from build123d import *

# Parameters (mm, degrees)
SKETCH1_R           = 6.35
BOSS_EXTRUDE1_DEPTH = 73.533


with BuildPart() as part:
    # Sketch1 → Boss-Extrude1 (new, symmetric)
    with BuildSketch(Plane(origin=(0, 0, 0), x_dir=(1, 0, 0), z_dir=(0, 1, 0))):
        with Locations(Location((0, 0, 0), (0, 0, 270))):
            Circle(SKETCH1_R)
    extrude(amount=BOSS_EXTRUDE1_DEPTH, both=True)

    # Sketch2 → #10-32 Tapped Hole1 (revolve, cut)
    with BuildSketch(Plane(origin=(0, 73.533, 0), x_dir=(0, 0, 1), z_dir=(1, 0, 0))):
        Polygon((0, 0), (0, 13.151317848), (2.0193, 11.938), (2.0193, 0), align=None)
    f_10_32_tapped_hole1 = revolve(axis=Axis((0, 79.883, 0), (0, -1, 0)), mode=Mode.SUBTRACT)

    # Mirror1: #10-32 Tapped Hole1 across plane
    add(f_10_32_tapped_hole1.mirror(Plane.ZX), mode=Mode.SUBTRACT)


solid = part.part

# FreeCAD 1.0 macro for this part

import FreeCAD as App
import Part
import Sketcher
Q = App.Units.Quantity


def add_polygon(sketch, points):
    """Adds a closed chain of lines whose ends are joined by coincident constraints."""
    first, n = sketch.GeometryCount, len(points)
    for a, b in zip(points, points[1:] + points[:1]):
        sketch.addGeometry(Part.LineSegment(App.Vector(*a, 0), App.Vector(*b, 0)), False)
    for i in range(n):
        sketch.addConstraint(Sketcher.Constraint("Coincident", first + i, 2, first + (i + 1) % n, 1))

doc = App.newDocument("Part")
body = doc.addObject("PartDesign::Body", "Body")

# Sketch on XZ plane
sketch1 = body.newObject("Sketcher::SketchObject", "Sketch")
sketch1.AttachmentSupport = (doc.getObject("XZ_Plane"), [""])
sketch1.MapMode = "FlatFace"
sketch1.addGeometry(Part.Circle(App.Vector(0, 0, 0), App.Vector(0, 0, 1), 6.35), False)
sketch1.addConstraint([
    Sketcher.Constraint("Coincident", 0, 3, -1, 1),
    Sketcher.Constraint("Diameter", 0, Q("0.5 in")),
])
pad1 = body.newObject("PartDesign::Pad", "Pad")
pad1.Profile = sketch1
pad1.Length = Q("5.79 in")
pad1.Midplane = True

# Sketch on YZ plane
sketch2 = body.newObject("Sketcher::SketchObject", "Sketch001")
sketch2.AttachmentSupport = (doc.getObject("YZ_Plane"), [""])
sketch2.MapMode = "FlatFace"
add_polygon(sketch2, [(60.381682, 0), (73.533, 0), (73.533, 2.0193), (61.595, 2.0193)])  # lines 0-3
sketch2.addConstraint([
    Sketcher.Constraint("Horizontal", 0),
    Sketcher.Constraint("Vertical", 1),
    Sketcher.Constraint("Horizontal", 2),
    Sketcher.Constraint("PointOnObject", 0, 2, -1),
    Sketcher.Constraint("Angle", 3, Q("-121 deg")),
    Sketcher.Constraint("DistanceX", 2, 2, 2, 1, Q("0.47 in")),
    Sketcher.Constraint("DistanceY", 1, 1, 1, 2, Q("0.0795 in")),
    Sketcher.Constraint("DistanceX", -1, 1, 0, 2, Q("2.895 in")),
])
groove = body.newObject("PartDesign::Groove", "Groove")
groove.Profile = sketch2
groove.ReferenceAxis = (sketch2, ["H_Axis"])
groove.Angle = 360
doc.recompute()

mirrored = body.newObject("PartDesign::Mirrored", "Mirrored")
mirrored.Originals = [groove]
mirrored.MirrorPlane = (doc.getObject("XZ_Plane"), [""])
body.Tip = mirrored

doc.recompute()
